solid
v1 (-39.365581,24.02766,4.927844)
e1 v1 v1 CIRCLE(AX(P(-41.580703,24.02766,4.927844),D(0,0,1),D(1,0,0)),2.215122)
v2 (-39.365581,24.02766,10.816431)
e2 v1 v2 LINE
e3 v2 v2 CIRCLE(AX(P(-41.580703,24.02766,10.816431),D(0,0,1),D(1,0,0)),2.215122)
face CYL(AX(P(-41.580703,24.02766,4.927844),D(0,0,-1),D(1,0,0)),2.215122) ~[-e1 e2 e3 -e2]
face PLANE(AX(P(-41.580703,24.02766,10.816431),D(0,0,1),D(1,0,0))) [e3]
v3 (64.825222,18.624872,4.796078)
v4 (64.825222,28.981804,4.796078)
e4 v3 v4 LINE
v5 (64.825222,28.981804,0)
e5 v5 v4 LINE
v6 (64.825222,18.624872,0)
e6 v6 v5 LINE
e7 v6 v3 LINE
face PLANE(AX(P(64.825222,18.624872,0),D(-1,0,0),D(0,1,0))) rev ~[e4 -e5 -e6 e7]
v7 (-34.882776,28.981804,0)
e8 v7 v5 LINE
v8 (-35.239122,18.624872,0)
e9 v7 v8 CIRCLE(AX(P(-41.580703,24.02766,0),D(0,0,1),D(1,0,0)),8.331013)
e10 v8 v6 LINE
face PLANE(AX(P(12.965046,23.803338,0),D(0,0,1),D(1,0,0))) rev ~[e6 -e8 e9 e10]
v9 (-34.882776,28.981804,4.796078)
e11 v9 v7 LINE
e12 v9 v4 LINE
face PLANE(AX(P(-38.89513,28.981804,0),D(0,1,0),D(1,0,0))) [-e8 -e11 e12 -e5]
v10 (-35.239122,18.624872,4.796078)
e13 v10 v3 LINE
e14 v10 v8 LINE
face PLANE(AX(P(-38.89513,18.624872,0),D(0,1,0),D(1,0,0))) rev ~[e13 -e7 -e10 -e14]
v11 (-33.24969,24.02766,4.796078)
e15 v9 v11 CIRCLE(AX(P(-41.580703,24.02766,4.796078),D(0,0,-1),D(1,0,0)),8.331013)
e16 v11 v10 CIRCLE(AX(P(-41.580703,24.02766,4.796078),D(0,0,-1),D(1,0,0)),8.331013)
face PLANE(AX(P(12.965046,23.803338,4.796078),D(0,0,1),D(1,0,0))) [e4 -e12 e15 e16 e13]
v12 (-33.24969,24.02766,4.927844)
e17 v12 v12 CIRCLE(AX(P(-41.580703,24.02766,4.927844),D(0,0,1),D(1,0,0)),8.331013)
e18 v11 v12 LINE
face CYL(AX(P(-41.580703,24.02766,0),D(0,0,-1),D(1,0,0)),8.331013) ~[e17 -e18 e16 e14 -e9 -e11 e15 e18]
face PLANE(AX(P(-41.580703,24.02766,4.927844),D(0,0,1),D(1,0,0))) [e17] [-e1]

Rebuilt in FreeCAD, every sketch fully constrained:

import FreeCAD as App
import Part
import Sketcher
from FreeCAD import Vector

doc = App.newDocument("Part")
body = doc.addObject("PartDesign::Body", "Body")

sketch1 = body.newObject("Sketcher::SketchObject", "Sketch")
sketch1.AttachmentSupport = (doc.getObject("XY_Plane"), [""])
sketch1.MapMode = "FlatFace"
sketch1.addGeometry(Part.LineSegment(Vector(-39, 29, 0), Vector(-39, 19, 0)), False)
sketch1.addGeometry(Part.LineSegment(Vector(-39, 19, 0), Vector(65, 19, 0)), False)
sketch1.addGeometry(Part.LineSegment(Vector(65, 19, 0), Vector(65, 29, 0)), False)
sketch1.addGeometry(Part.LineSegment(Vector(65, 29, 0), Vector(-39, 29, 0)), False)
sketch1.addConstraint(Sketcher.Constraint("Coincident", 0, 2, 1, 1))
sketch1.addConstraint(Sketcher.Constraint("Coincident", 1, 2, 2, 1))
sketch1.addConstraint(Sketcher.Constraint("Coincident", 2, 2, 3, 1))
sketch1.addConstraint(Sketcher.Constraint("Coincident", 3, 2, 0, 1))
sketch1.addConstraint(Sketcher.Constraint("Vertical", 0))
sketch1.addConstraint(Sketcher.Constraint("Horizontal", 1))
sketch1.addConstraint(Sketcher.Constraint("Vertical", 2))
sketch1.addConstraint(Sketcher.Constraint("Horizontal", 3))
sketch1.addConstraint(Sketcher.Constraint("DistanceX", 1, 1, 1, 2, 103.720352))
sketch1.addConstraint(Sketcher.Constraint("DistanceY", 0, 2, 0, 1, 10.356933))
sketch1.addConstraint(Sketcher.Constraint("DistanceX", 0, 2, -1, 1, 38.89513))
sketch1.addConstraint(Sketcher.Constraint("DistanceY", -1, 1, 0, 2, 18.624872))
pad1 = body.newObject("PartDesign::Pad", "Pad")
pad1.Profile = sketch1
pad1.Length = 4.796078

sketch2 = body.newObject("Sketcher::SketchObject", "Sketch001")
sketch2.AttachmentSupport = (doc.getObject("XY_Plane"), [""])
sketch2.MapMode = "FlatFace"
sketch2.addGeometry(Part.Circle(Vector(-42, 24, 0), Vector(0, 0, 1), 8), False)
sketch2.addConstraint(Sketcher.Constraint("Diameter", 0, 16.662026))
sketch2.addConstraint(Sketcher.Constraint("DistanceY", -1, 1, 0, 3, 24.02766))
sketch2.addConstraint(Sketcher.Constraint("DistanceX", 0, 3, -1, 1, 41.580703))
pad2 = body.newObject("PartDesign::Pad", "Pad001")
pad2.Profile = sketch2
pad2.Length = 4.927844

sketch3 = body.newObject("Sketcher::SketchObject", "Sketch002")
sketch3.AttachmentSupport = (doc.getObject("XY_Plane"), [""])
sketch3.MapMode = "FlatFace"
sketch3.AttachmentOffset = App.Placement(Vector(0, 0, 4.927844), App.Rotation())
sketch3.addGeometry(Part.Circle(Vector(-41.6, 24, 0), Vector(0, 0, 1), 2.2), False)
sketch3.addConstraint(Sketcher.Constraint("Diameter", 0, 4.430244))
sketch3.addConstraint(Sketcher.Constraint("DistanceY", -1, 1, 0, 3, 24.02766))
sketch3.addConstraint(Sketcher.Constraint("DistanceX", 0, 3, -1, 1, 41.580703))
pad3 = body.newObject("PartDesign::Pad", "Pad002")
pad3.Profile = sketch3
pad3.Length = 5.888587

doc.recompute()
